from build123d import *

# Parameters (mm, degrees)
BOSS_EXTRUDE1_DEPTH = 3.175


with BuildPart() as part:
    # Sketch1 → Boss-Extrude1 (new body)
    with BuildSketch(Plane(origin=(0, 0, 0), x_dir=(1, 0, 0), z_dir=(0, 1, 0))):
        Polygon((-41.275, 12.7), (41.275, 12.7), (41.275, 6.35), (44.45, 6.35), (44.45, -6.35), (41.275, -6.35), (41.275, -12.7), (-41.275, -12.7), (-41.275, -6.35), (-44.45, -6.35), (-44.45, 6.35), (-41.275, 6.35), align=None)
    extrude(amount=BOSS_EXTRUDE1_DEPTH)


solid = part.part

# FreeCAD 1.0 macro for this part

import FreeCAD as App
import Part
import Sketcher
Q = App.Units.Quantity

doc = App.newDocument("Part")
body = doc.addObject("PartDesign::Body", "Body")

# Sketch on XZ plane
sketch1 = body.newObject("Sketcher::SketchObject", "Sketch")
sketch1.AttachmentSupport = (doc.getObject("XZ_Plane"), [""])
sketch1.MapMode = "FlatFace"
sketch1.addGeometry([
    Part.LineSegment(App.Vector(41.3, -12.7, 0), App.Vector(-41.3, -12.7, 0)),  # 0
    Part.LineSegment(App.Vector(-41.3, -12.7, 0), App.Vector(-41.3, -6.3, 0)),  # 1
    Part.LineSegment(App.Vector(-41.3, -6.3, 0), App.Vector(-44.5, -6.3, 0)),  # 2
    Part.LineSegment(App.Vector(-44.5, -6.3, 0), App.Vector(-44.5, 6.3, 0)),  # 3
    Part.LineSegment(App.Vector(-44.5, 6.3, 0), App.Vector(-41.3, 6.3, 0)),  # 4
    Part.LineSegment(App.Vector(-41.3, 6.3, 0), App.Vector(-41.3, 12.7, 0)),  # 5
    Part.LineSegment(App.Vector(-41.3, 12.7, 0), App.Vector(41.3, 12.7, 0)),  # 6
    Part.LineSegment(App.Vector(41.3, 12.7, 0), App.Vector(41.3, 6.3, 0)),  # 7
    Part.LineSegment(App.Vector(41.3, 6.3, 0), App.Vector(44.5, 6.3, 0)),  # 8
    Part.LineSegment(App.Vector(44.5, 6.3, 0), App.Vector(44.5, -6.3, 0)),  # 9
    Part.LineSegment(App.Vector(44.5, -6.3, 0), App.Vector(41.3, -6.3, 0)),  # 10
    Part.LineSegment(App.Vector(41.3, -6.3, 0), App.Vector(41.3, -12.7, 0)),  # 11
], False)
sketch1.addConstraint([
    Sketcher.Constraint("Coincident", 0, 2, 1, 1),
    Sketcher.Constraint("Coincident", 1, 2, 2, 1),
    Sketcher.Constraint("Coincident", 2, 2, 3, 1),
    Sketcher.Constraint("Coincident", 3, 2, 4, 1),
    Sketcher.Constraint("Coincident", 4, 2, 5, 1),
    Sketcher.Constraint("Coincident", 5, 2, 6, 1),
    Sketcher.Constraint("Coincident", 6, 2, 7, 1),
    Sketcher.Constraint("Coincident", 7, 2, 8, 1),
    Sketcher.Constraint("Coincident", 8, 2, 9, 1),
    Sketcher.Constraint("Coincident", 9, 2, 10, 1),
    Sketcher.Constraint("Coincident", 10, 2, 11, 1),
    Sketcher.Constraint("Coincident", 11, 2, 0, 1),
    Sketcher.Constraint("Horizontal", 0),
    Sketcher.Constraint("Vertical", 1),
    Sketcher.Constraint("Horizontal", 2),
    Sketcher.Constraint("Vertical", 3),
    Sketcher.Constraint("Horizontal", 4),
    Sketcher.Constraint("Vertical", 5),
    Sketcher.Constraint("Horizontal", 6),
    Sketcher.Constraint("Vertical", 7),
    Sketcher.Constraint("Horizontal", 8),
    Sketcher.Constraint("Vertical", 9),
    Sketcher.Constraint("Horizontal", 10),
    Sketcher.Constraint("Vertical", 11),
    Sketcher.Constraint("Symmetric", 0, 2, 6, 2, -1, 1),
    Sketcher.Constraint("Symmetric", 2, 2, 8, 2, -1, 1),
    Sketcher.Constraint("Symmetric", 4, 2, 10, 2, -1, 1),
    Sketcher.Constraint("Symmetric", 4, 2, 7, 2, -2),
    Sketcher.Constraint("DistanceY", 3, 1, 3, 2, Q("0.5 in")),
    Sketcher.Constraint("DistanceY", 0, 2, 5, 2, Q("1 in")),
    Sketcher.Constraint("DistanceX", 0, 2, 0, 1, Q("3.25 in")),
    Sketcher.Constraint("DistanceX", 2, 2, 2, 1, Q("0.125 in")),
])
pad1 = body.newObject("PartDesign::Pad", "Pad")
pad1.Profile = sketch1
pad1.Length = Q("0.125 in")
pad1.Reversed = True

doc.recompute()
